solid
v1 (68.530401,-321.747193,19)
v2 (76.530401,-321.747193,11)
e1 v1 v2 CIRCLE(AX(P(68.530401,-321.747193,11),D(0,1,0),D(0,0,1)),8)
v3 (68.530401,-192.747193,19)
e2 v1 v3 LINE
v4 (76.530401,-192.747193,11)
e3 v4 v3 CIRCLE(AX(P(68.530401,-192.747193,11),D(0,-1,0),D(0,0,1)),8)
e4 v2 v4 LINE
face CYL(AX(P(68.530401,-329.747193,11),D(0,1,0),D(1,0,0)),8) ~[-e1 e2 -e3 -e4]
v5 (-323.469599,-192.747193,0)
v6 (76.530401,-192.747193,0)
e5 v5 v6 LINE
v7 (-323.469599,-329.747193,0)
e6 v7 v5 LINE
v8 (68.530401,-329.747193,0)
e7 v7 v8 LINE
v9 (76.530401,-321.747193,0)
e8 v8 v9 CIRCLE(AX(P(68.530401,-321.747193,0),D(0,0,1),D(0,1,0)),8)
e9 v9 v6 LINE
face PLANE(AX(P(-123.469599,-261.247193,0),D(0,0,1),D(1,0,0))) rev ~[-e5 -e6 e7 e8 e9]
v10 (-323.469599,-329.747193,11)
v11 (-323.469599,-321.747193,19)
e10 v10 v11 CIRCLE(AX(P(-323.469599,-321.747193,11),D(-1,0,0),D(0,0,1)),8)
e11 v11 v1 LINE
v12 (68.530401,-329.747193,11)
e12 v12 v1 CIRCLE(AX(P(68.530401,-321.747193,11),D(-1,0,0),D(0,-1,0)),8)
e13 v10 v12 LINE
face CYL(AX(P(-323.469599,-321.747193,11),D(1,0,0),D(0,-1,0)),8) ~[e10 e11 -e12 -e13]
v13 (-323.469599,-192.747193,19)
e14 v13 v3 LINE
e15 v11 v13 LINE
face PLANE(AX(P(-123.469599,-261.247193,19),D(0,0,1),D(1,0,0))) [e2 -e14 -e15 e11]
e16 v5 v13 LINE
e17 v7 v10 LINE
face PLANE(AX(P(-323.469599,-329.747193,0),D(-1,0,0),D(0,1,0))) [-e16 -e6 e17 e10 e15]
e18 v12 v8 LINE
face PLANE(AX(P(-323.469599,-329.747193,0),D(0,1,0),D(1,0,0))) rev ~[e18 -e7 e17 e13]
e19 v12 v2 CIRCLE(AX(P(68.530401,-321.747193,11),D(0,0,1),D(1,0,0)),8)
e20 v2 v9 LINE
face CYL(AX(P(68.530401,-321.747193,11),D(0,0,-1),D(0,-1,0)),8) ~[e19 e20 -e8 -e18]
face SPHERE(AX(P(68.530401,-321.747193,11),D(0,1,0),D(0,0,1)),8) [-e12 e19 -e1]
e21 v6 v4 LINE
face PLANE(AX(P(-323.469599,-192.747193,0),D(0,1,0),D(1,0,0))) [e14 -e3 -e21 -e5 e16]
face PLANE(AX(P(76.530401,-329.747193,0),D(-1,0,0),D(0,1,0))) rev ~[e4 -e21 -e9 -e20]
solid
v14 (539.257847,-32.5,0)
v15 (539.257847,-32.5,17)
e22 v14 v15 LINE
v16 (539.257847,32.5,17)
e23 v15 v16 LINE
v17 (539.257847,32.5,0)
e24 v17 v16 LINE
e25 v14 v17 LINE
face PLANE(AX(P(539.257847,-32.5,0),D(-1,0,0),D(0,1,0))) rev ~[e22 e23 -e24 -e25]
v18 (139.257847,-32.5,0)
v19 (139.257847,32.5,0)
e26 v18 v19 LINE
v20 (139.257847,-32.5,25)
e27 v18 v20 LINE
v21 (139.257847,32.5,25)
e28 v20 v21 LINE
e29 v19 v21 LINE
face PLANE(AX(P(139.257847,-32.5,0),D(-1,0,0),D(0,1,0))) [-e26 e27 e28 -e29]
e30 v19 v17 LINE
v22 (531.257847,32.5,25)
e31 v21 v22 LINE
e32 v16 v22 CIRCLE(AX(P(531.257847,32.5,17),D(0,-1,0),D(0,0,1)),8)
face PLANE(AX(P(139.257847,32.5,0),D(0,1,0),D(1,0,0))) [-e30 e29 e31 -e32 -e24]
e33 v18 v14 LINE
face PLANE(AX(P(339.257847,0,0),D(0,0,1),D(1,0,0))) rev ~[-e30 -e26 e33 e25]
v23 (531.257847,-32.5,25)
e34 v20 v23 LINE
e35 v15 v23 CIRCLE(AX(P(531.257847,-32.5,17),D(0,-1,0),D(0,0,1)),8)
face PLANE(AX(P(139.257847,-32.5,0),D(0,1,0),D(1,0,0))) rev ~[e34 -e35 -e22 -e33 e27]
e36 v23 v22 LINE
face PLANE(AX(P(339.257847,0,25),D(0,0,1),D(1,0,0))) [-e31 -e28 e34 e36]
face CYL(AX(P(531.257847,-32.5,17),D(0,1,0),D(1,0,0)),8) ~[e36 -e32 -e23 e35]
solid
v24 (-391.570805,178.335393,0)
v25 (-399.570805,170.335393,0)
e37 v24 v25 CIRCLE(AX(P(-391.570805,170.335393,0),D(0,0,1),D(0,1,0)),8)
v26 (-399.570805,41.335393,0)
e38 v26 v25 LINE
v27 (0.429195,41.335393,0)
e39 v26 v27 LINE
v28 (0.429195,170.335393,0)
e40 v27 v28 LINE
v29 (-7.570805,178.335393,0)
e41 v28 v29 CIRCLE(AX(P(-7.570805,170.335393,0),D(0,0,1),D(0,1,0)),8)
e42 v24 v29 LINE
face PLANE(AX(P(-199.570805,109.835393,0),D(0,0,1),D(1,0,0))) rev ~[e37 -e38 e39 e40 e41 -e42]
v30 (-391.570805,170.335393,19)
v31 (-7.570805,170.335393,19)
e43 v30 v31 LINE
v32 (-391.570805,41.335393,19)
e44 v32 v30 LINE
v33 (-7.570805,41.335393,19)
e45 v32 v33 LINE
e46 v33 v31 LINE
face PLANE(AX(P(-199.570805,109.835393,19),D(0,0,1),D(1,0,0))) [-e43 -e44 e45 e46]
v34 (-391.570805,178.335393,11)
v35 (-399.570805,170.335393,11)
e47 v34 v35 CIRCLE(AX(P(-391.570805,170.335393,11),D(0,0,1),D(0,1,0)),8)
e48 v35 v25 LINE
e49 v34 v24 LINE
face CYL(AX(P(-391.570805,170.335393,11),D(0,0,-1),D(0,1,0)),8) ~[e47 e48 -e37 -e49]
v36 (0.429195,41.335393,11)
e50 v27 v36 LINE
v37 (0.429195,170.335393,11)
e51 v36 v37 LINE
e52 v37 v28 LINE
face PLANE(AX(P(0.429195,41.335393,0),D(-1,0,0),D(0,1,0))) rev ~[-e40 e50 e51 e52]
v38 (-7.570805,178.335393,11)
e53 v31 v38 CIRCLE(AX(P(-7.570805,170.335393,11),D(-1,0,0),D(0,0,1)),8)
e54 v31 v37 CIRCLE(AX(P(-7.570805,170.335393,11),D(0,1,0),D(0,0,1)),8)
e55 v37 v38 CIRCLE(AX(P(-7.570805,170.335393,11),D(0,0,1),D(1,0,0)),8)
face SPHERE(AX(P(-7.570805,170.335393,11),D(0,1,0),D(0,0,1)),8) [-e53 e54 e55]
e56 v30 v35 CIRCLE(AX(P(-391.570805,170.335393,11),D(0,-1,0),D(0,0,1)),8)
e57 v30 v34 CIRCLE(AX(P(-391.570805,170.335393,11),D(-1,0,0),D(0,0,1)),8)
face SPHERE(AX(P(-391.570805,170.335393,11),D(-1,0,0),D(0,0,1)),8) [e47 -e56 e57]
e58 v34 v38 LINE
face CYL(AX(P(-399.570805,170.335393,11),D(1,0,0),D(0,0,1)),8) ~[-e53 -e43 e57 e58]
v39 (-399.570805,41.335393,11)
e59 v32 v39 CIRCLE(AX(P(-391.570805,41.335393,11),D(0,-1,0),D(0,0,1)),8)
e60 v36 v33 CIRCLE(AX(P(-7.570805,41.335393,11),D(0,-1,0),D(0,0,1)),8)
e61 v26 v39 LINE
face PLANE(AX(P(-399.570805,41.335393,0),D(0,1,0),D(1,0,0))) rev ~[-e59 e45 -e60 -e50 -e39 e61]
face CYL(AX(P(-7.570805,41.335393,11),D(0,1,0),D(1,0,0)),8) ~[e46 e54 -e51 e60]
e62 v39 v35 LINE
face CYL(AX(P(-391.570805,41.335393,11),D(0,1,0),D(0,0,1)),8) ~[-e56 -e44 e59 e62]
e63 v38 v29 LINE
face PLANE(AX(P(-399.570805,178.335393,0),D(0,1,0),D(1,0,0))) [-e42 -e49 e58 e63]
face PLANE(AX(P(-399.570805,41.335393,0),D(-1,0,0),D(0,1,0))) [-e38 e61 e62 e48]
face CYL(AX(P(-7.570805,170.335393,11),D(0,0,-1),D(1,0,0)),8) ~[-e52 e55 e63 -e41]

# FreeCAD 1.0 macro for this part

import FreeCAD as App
import Part
import Sketcher

V = App.Vector
Q = App.Units.Quantity


def edges_at(feature, points):
    """Names of the edges that pass closest to the given points."""
    edges = feature.Shape.Edges
    near = lambda p: min(range(len(edges)), key=lambda i: edges[i].distToShape(Part.Vertex(*p))[0])
    return sorted({f"Edge{near(p) + 1}" for p in points})

doc = App.newDocument("Part")
body = doc.addObject("PartDesign::Body", "Body")

# Sketch on XY plane
sketch1 = doc.addObject("Sketcher::SketchObject", "Sketch")
body.addObject(sketch1)
sketch1.AttachmentSupport = (doc.XY_Plane, [""])
sketch1.MapMode = "FlatFace"
sketch1.addGeometry([
    Part.LineSegment(V(-400, 178, 0), V(-400, 41, 0)),
    Part.LineSegment(V(-400, 41, 0), V(0, 41, 0)),
    Part.LineSegment(V(0, 41, 0), V(0, 178, 0)),
    Part.LineSegment(V(0, 178, 0), V(-400, 178, 0)),
], False)
sketch1.addConstraint([
    Sketcher.Constraint("Coincident", 0, 2, 1, 1),
    Sketcher.Constraint("Coincident", 1, 2, 2, 1),
    Sketcher.Constraint("Coincident", 2, 2, 3, 1),
    Sketcher.Constraint("Coincident", 3, 2, 0, 1),
    Sketcher.Constraint("Vertical", 0),
    Sketcher.Constraint("Horizontal", 1),
    Sketcher.Constraint("Vertical", 2),
    Sketcher.Constraint("Horizontal", 3),
    Sketcher.Constraint("DistanceX", 1, 1, 1, 2, Q("400 mm")),
    Sketcher.Constraint("DistanceY", 0, 2, 0, 1, Q("137 mm")),
    Sketcher.Constraint("DistanceX", 0, 2, -1, 1, Q("399.570805 mm")),
    Sketcher.Constraint("DistanceY", -1, 1, 0, 2, Q("41.335393 mm")),
])
pad1 = doc.addObject("PartDesign::Pad", "Pad")
body.addObject(pad1)
pad1.Profile = sketch1
pad1.Length = 19
doc.recompute()

fillet = doc.addObject("PartDesign::Fillet", "Fillet")
body.addObject(fillet)
fillet.Base = (pad1, edges_at(pad1, [(0.429, 109.835, 19)]))
fillet.Radius = 8
doc.recompute()

fillet2 = doc.addObject("PartDesign::Fillet", "Fillet001")
body.addObject(fillet2)
fillet2.Base = (fillet, edges_at(fillet, [(-203.571, 178.335, 19)]))
fillet2.Radius = 8
doc.recompute()

fillet3 = doc.addObject("PartDesign::Fillet", "Fillet002")
body.addObject(fillet3)
fillet3.Base = (fillet2, edges_at(fillet2, [(-399.571, 105.835, 19)]))
fillet3.Radius = 8
body2 = doc.addObject("PartDesign::Body", "Body001")

# Sketch on XY plane
sketch2 = doc.addObject("Sketcher::SketchObject", "Sketch001")
body2.addObject(sketch2)
sketch2.AttachmentSupport = (doc.getObject("XY_Plane001"), [""])
sketch2.MapMode = "FlatFace"
sketch2.addGeometry([
    Part.LineSegment(V(-323, -193, 0), V(-323, -330, 0)),
    Part.LineSegment(V(-323, -330, 0), V(77, -330, 0)),
    Part.LineSegment(V(77, -330, 0), V(77, -193, 0)),
    Part.LineSegment(V(77, -193, 0), V(-323, -193, 0)),
], False)
sketch2.addConstraint([
    Sketcher.Constraint("Coincident", 0, 2, 1, 1),
    Sketcher.Constraint("Coincident", 1, 2, 2, 1),
    Sketcher.Constraint("Coincident", 2, 2, 3, 1),
    Sketcher.Constraint("Coincident", 3, 2, 0, 1),
    Sketcher.Constraint("Vertical", 0),
    Sketcher.Constraint("Horizontal", 1),
    Sketcher.Constraint("Vertical", 2),
    Sketcher.Constraint("Horizontal", 3),
    Sketcher.Constraint("DistanceX", 1, 1, 1, 2, Q("400 mm")),
    Sketcher.Constraint("DistanceY", 0, 2, 0, 1, Q("137 mm")),
    Sketcher.Constraint("DistanceX", 0, 2, -1, 1, Q("323.469599 mm")),
    Sketcher.Constraint("DistanceY", 0, 2, -1, 1, Q("329.747193 mm")),
])
pad2 = doc.addObject("PartDesign::Pad", "Pad001")
body2.addObject(pad2)
pad2.Profile = sketch2
pad2.Length = 19
doc.recompute()

fillet4 = doc.addObject("PartDesign::Fillet", "Fillet003")
body2.addObject(fillet4)
fillet4.Base = (pad2, edges_at(pad2, [(76.53, -261.247, 19)]))
fillet4.Radius = 8
doc.recompute()

fillet5 = doc.addObject("PartDesign::Fillet", "Fillet004")
body2.addObject(fillet5)
fillet5.Base = (fillet4, edges_at(fillet4, [(-127.47, -329.747, 19)]))
fillet5.Radius = 8
body3 = doc.addObject("PartDesign::Body", "Body002")

# Sketch on XY plane
sketch3 = doc.addObject("Sketcher::SketchObject", "Sketch002")
body3.addObject(sketch3)
sketch3.AttachmentSupport = (doc.getObject("XY_Plane002"), [""])
sketch3.MapMode = "FlatFace"
sketch3.addGeometry([
    Part.LineSegment(V(139, 32, 0), V(139, -32, 0)),
    Part.LineSegment(V(139, -32, 0), V(539, -32, 0)),
    Part.LineSegment(V(539, -32, 0), V(539, 32, 0)),
    Part.LineSegment(V(539, 32, 0), V(139, 32, 0)),
], False)
sketch3.addConstraint([
    Sketcher.Constraint("Coincident", 0, 2, 1, 1),
    Sketcher.Constraint("Coincident", 1, 2, 2, 1),
    Sketcher.Constraint("Coincident", 2, 2, 3, 1),
    Sketcher.Constraint("Coincident", 3, 2, 0, 1),
    Sketcher.Constraint("Vertical", 0),
    Sketcher.Constraint("Horizontal", 1),
    Sketcher.Constraint("Vertical", 2),
    Sketcher.Constraint("Horizontal", 3),
    Sketcher.Constraint("DistanceX", 1, 1, 1, 2, Q("400 mm")),
    Sketcher.Constraint("DistanceY", 0, 2, 0, 1, Q("65 mm")),
    Sketcher.Constraint("DistanceY", 0, 2, -1, 1, Q("32.5 mm")),
    Sketcher.Constraint("DistanceX", -1, 1, 0, 2, Q("139.257847 mm")),
])
pad3 = doc.addObject("PartDesign::Pad", "Pad002")
body3.addObject(pad3)
pad3.Profile = sketch3
pad3.Length = 25
doc.recompute()

fillet6 = doc.addObject("PartDesign::Fillet", "Fillet005")
body3.addObject(fillet6)
fillet6.Base = (pad3, edges_at(pad3, [(539.258, 0, 25)]))
fillet6.Radius = 8

doc.recompute()
